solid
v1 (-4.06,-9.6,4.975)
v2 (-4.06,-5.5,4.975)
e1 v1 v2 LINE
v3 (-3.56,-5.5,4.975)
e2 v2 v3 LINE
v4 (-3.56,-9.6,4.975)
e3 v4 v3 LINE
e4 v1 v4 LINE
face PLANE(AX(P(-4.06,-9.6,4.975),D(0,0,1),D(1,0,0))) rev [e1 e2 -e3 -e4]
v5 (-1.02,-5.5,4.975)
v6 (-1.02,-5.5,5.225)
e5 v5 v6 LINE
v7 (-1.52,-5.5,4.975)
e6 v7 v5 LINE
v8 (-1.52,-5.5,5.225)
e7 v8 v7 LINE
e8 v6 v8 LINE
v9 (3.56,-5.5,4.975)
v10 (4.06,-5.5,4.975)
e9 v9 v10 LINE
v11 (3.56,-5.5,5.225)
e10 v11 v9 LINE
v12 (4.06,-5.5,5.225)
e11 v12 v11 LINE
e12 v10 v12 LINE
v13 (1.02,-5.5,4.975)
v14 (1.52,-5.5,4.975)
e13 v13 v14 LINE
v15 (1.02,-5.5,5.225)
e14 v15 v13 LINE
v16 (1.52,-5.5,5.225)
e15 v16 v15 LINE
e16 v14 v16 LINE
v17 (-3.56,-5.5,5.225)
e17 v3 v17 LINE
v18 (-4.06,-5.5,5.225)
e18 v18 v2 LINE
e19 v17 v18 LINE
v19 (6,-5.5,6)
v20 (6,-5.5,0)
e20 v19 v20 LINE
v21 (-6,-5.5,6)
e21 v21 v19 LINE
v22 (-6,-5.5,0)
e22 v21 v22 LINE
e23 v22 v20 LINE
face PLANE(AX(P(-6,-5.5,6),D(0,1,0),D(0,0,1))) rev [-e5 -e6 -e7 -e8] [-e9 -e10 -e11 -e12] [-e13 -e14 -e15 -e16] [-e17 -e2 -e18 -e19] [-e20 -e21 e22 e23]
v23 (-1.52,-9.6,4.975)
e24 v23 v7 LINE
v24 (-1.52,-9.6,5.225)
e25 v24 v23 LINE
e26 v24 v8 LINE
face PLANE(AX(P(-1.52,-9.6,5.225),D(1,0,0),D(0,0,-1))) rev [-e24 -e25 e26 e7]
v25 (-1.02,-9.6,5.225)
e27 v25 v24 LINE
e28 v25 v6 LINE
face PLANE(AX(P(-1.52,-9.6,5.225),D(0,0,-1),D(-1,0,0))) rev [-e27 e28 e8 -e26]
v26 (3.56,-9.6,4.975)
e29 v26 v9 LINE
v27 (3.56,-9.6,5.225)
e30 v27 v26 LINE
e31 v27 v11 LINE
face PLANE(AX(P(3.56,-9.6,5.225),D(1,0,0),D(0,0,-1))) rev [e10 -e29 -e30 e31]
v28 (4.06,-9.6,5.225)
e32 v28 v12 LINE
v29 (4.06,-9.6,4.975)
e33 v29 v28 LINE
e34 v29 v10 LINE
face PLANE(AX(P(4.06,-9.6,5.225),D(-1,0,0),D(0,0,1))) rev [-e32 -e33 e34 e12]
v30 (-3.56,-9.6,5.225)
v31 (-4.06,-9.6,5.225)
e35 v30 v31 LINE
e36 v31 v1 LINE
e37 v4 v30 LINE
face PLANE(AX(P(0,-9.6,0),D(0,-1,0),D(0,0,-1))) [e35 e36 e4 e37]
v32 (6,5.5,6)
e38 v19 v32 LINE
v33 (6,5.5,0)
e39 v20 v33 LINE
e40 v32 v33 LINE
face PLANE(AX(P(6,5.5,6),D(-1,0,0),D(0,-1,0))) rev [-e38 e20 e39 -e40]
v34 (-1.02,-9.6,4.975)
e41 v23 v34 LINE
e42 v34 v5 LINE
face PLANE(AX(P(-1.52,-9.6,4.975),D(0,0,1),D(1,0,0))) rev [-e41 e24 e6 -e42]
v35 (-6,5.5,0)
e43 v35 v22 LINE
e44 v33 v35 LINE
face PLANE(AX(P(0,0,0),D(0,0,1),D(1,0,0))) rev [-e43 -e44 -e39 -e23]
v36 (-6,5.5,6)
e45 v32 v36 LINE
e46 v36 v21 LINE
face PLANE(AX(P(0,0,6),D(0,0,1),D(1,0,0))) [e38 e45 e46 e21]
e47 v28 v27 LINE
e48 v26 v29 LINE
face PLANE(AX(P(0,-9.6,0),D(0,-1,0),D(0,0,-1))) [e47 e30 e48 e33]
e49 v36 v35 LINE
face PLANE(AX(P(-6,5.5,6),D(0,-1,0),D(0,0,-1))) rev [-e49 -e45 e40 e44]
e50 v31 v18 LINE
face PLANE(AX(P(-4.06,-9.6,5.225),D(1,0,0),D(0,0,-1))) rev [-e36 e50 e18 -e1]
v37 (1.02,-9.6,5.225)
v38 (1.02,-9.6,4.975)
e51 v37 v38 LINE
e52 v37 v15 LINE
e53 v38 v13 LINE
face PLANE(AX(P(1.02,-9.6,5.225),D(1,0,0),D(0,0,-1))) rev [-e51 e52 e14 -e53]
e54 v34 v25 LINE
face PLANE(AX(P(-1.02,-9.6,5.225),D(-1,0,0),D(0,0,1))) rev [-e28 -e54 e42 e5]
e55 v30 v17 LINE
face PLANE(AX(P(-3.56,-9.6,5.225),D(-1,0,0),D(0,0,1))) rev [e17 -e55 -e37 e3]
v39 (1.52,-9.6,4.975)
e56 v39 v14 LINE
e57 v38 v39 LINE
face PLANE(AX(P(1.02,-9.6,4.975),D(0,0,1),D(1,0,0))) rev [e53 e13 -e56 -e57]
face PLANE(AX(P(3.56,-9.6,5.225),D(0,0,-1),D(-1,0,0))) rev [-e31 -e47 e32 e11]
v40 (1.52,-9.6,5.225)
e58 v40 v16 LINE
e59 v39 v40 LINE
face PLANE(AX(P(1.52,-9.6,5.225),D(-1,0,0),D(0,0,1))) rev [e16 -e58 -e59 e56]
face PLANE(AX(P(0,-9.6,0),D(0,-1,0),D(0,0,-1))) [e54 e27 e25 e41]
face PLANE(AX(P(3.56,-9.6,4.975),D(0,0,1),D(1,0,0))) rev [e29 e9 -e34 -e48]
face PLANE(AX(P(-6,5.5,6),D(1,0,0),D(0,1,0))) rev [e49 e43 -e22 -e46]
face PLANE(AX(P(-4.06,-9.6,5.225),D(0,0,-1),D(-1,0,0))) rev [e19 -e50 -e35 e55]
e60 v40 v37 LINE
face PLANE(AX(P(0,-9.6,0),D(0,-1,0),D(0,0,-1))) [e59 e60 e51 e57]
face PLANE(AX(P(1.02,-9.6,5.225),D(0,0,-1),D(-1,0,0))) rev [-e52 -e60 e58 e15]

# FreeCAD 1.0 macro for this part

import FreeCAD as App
import Part
import Sketcher
from FreeCAD import Vector
Q = App.Units.Quantity

doc = App.newDocument("Part")
body = doc.addObject("PartDesign::Body", "Body")

# Sketch on XY plane
sketch1 = body.newObject("Sketcher::SketchObject", "Sketch")
sketch1.AttachmentSupport = (doc.getObject("XY_Plane"), [""])
sketch1.MapMode = "FlatFace"
sketch1.addGeometry([
    Part.LineSegment(Vector(-6, 6, 0), Vector(-6, -6, 0)),
    Part.LineSegment(Vector(-6, -6, 0), Vector(6, -6, 0)),
    Part.LineSegment(Vector(6, -6, 0), Vector(6, 6, 0)),
    Part.LineSegment(Vector(6, 6, 0), Vector(-6, 6, 0)),
], False)
sketch1.addConstraint([
    Sketcher.Constraint("Coincident", 0, 2, 1, 1),
    Sketcher.Constraint("Coincident", 1, 2, 2, 1),
    Sketcher.Constraint("Coincident", 2, 2, 3, 1),
    Sketcher.Constraint("Coincident", 3, 2, 0, 1),
    Sketcher.Constraint("Vertical", 0),
    Sketcher.Constraint("Horizontal", 1),
    Sketcher.Constraint("Vertical", 2),
    Sketcher.Constraint("Horizontal", 3),
    Sketcher.Constraint("Symmetric", 0, 2, 2, 2, -1, 1),
    Sketcher.Constraint("DistanceX", 1, 1, 1, 2, Q("12 mm")),
    Sketcher.Constraint("DistanceY", 0, 2, 0, 1, Q("11 mm")),
])
pad1 = body.newObject("PartDesign::Pad", "Pad")
pad1.Profile = sketch1
pad1.Length = 6

# Sketch on XZ plane
sketch2 = body.newObject("Sketcher::SketchObject", "Sketch001")
sketch2.AttachmentSupport = (doc.getObject("XZ_Plane"), [""])
sketch2.MapMode = "FlatFace"
sketch2.AttachmentOffset = App.Placement(Vector(0, 0, 5.5), App.Rotation())
sketch2.addGeometry([
    Part.LineSegment(Vector(1.02, 5.22, 0), Vector(1.02, 4.97, 0)),  # 0
    Part.LineSegment(Vector(1.02, 4.97, 0), Vector(1.52, 4.97, 0)),  # 1
    Part.LineSegment(Vector(1.52, 4.97, 0), Vector(1.52, 5.22, 0)),  # 2
    Part.LineSegment(Vector(1.52, 5.22, 0), Vector(1.02, 5.22, 0)),  # 3
    Part.LineSegment(Vector(3.56, 5.22, 0), Vector(3.56, 4.97, 0)),  # 4
    Part.LineSegment(Vector(3.56, 4.97, 0), Vector(4.06, 4.97, 0)),  # 5
    Part.LineSegment(Vector(4.06, 4.97, 0), Vector(4.06, 5.22, 0)),  # 6
    Part.LineSegment(Vector(4.06, 5.22, 0), Vector(3.56, 5.22, 0)),  # 7
    Part.LineSegment(Vector(-1.52, 5.22, 0), Vector(-1.52, 4.97, 0)),  # 8
    Part.LineSegment(Vector(-1.52, 4.97, 0), Vector(-1.02, 4.97, 0)),  # 9
    Part.LineSegment(Vector(-1.02, 4.97, 0), Vector(-1.02, 5.22, 0)),  # 10
    Part.LineSegment(Vector(-1.02, 5.22, 0), Vector(-1.52, 5.22, 0)),  # 11
    Part.LineSegment(Vector(-4.06, 5.22, 0), Vector(-4.06, 4.97, 0)),  # 12
    Part.LineSegment(Vector(-4.06, 4.97, 0), Vector(-3.56, 4.97, 0)),  # 13
    Part.LineSegment(Vector(-3.56, 4.97, 0), Vector(-3.56, 5.22, 0)),  # 14
    Part.LineSegment(Vector(-3.56, 5.22, 0), Vector(-4.06, 5.22, 0)),  # 15
], False)
sketch2.addConstraint([
    Sketcher.Constraint("Coincident", 0, 2, 1, 1),
    Sketcher.Constraint("Coincident", 1, 2, 2, 1),
    Sketcher.Constraint("Coincident", 2, 2, 3, 1),
    Sketcher.Constraint("Coincident", 3, 2, 0, 1),
    Sketcher.Constraint("Coincident", 4, 2, 5, 1),
    Sketcher.Constraint("Coincident", 5, 2, 6, 1),
    Sketcher.Constraint("Coincident", 6, 2, 7, 1),
    Sketcher.Constraint("Coincident", 7, 2, 4, 1),
    Sketcher.Constraint("Coincident", 8, 2, 9, 1),
    Sketcher.Constraint("Coincident", 9, 2, 10, 1),
    Sketcher.Constraint("Coincident", 10, 2, 11, 1),
    Sketcher.Constraint("Coincident", 11, 2, 8, 1),
    Sketcher.Constraint("Coincident", 12, 2, 13, 1),
    Sketcher.Constraint("Coincident", 13, 2, 14, 1),
    Sketcher.Constraint("Coincident", 14, 2, 15, 1),
    Sketcher.Constraint("Coincident", 15, 2, 12, 1),
    Sketcher.Constraint("Vertical", 0),
    Sketcher.Constraint("Horizontal", 1),
    Sketcher.Constraint("Vertical", 2),
    Sketcher.Constraint("Horizontal", 3),
    Sketcher.Constraint("Vertical", 4),
    Sketcher.Constraint("Horizontal", 5),
    Sketcher.Constraint("Vertical", 6),
    Sketcher.Constraint("Horizontal", 7),
    Sketcher.Constraint("Vertical", 8),
    Sketcher.Constraint("Horizontal", 9),
    Sketcher.Constraint("Vertical", 10),
    Sketcher.Constraint("Horizontal", 11),
    Sketcher.Constraint("Vertical", 12),
    Sketcher.Constraint("Horizontal", 13),
    Sketcher.Constraint("Vertical", 14),
    Sketcher.Constraint("Horizontal", 15),
    Sketcher.Constraint("Symmetric", 1, 2, 8, 2, -2),
    Sketcher.Constraint("Symmetric", 3, 2, 10, 2, -2),
    Sketcher.Constraint("Symmetric", 5, 2, 12, 2, -2),
    Sketcher.Constraint("Symmetric", 7, 2, 14, 2, -2),
    Sketcher.Constraint("Horizontal", 1, 2, 4, 2),
    Sketcher.Constraint("Horizontal", 3, 2, 6, 2),
    Sketcher.Constraint("Equal", 3, 5),
    Sketcher.Constraint("DistanceX", 1, 1, 1, 2, Q("0.5 mm")),
    Sketcher.Constraint("DistanceY", 0, 2, 0, 1, Q("0.25 mm")),
    Sketcher.Constraint("DistanceX", -1, 1, 0, 2, Q("1.02 mm")),
    Sketcher.Constraint("DistanceX", -1, 1, 4, 2, Q("3.56 mm")),
    Sketcher.Constraint("DistanceY", -1, 1, 0, 2, Q("4.975 mm")),
])
pad2 = body.newObject("PartDesign::Pad", "Pad001")
pad2.Profile = sketch2
pad2.Length = 4.1

doc.recompute()
